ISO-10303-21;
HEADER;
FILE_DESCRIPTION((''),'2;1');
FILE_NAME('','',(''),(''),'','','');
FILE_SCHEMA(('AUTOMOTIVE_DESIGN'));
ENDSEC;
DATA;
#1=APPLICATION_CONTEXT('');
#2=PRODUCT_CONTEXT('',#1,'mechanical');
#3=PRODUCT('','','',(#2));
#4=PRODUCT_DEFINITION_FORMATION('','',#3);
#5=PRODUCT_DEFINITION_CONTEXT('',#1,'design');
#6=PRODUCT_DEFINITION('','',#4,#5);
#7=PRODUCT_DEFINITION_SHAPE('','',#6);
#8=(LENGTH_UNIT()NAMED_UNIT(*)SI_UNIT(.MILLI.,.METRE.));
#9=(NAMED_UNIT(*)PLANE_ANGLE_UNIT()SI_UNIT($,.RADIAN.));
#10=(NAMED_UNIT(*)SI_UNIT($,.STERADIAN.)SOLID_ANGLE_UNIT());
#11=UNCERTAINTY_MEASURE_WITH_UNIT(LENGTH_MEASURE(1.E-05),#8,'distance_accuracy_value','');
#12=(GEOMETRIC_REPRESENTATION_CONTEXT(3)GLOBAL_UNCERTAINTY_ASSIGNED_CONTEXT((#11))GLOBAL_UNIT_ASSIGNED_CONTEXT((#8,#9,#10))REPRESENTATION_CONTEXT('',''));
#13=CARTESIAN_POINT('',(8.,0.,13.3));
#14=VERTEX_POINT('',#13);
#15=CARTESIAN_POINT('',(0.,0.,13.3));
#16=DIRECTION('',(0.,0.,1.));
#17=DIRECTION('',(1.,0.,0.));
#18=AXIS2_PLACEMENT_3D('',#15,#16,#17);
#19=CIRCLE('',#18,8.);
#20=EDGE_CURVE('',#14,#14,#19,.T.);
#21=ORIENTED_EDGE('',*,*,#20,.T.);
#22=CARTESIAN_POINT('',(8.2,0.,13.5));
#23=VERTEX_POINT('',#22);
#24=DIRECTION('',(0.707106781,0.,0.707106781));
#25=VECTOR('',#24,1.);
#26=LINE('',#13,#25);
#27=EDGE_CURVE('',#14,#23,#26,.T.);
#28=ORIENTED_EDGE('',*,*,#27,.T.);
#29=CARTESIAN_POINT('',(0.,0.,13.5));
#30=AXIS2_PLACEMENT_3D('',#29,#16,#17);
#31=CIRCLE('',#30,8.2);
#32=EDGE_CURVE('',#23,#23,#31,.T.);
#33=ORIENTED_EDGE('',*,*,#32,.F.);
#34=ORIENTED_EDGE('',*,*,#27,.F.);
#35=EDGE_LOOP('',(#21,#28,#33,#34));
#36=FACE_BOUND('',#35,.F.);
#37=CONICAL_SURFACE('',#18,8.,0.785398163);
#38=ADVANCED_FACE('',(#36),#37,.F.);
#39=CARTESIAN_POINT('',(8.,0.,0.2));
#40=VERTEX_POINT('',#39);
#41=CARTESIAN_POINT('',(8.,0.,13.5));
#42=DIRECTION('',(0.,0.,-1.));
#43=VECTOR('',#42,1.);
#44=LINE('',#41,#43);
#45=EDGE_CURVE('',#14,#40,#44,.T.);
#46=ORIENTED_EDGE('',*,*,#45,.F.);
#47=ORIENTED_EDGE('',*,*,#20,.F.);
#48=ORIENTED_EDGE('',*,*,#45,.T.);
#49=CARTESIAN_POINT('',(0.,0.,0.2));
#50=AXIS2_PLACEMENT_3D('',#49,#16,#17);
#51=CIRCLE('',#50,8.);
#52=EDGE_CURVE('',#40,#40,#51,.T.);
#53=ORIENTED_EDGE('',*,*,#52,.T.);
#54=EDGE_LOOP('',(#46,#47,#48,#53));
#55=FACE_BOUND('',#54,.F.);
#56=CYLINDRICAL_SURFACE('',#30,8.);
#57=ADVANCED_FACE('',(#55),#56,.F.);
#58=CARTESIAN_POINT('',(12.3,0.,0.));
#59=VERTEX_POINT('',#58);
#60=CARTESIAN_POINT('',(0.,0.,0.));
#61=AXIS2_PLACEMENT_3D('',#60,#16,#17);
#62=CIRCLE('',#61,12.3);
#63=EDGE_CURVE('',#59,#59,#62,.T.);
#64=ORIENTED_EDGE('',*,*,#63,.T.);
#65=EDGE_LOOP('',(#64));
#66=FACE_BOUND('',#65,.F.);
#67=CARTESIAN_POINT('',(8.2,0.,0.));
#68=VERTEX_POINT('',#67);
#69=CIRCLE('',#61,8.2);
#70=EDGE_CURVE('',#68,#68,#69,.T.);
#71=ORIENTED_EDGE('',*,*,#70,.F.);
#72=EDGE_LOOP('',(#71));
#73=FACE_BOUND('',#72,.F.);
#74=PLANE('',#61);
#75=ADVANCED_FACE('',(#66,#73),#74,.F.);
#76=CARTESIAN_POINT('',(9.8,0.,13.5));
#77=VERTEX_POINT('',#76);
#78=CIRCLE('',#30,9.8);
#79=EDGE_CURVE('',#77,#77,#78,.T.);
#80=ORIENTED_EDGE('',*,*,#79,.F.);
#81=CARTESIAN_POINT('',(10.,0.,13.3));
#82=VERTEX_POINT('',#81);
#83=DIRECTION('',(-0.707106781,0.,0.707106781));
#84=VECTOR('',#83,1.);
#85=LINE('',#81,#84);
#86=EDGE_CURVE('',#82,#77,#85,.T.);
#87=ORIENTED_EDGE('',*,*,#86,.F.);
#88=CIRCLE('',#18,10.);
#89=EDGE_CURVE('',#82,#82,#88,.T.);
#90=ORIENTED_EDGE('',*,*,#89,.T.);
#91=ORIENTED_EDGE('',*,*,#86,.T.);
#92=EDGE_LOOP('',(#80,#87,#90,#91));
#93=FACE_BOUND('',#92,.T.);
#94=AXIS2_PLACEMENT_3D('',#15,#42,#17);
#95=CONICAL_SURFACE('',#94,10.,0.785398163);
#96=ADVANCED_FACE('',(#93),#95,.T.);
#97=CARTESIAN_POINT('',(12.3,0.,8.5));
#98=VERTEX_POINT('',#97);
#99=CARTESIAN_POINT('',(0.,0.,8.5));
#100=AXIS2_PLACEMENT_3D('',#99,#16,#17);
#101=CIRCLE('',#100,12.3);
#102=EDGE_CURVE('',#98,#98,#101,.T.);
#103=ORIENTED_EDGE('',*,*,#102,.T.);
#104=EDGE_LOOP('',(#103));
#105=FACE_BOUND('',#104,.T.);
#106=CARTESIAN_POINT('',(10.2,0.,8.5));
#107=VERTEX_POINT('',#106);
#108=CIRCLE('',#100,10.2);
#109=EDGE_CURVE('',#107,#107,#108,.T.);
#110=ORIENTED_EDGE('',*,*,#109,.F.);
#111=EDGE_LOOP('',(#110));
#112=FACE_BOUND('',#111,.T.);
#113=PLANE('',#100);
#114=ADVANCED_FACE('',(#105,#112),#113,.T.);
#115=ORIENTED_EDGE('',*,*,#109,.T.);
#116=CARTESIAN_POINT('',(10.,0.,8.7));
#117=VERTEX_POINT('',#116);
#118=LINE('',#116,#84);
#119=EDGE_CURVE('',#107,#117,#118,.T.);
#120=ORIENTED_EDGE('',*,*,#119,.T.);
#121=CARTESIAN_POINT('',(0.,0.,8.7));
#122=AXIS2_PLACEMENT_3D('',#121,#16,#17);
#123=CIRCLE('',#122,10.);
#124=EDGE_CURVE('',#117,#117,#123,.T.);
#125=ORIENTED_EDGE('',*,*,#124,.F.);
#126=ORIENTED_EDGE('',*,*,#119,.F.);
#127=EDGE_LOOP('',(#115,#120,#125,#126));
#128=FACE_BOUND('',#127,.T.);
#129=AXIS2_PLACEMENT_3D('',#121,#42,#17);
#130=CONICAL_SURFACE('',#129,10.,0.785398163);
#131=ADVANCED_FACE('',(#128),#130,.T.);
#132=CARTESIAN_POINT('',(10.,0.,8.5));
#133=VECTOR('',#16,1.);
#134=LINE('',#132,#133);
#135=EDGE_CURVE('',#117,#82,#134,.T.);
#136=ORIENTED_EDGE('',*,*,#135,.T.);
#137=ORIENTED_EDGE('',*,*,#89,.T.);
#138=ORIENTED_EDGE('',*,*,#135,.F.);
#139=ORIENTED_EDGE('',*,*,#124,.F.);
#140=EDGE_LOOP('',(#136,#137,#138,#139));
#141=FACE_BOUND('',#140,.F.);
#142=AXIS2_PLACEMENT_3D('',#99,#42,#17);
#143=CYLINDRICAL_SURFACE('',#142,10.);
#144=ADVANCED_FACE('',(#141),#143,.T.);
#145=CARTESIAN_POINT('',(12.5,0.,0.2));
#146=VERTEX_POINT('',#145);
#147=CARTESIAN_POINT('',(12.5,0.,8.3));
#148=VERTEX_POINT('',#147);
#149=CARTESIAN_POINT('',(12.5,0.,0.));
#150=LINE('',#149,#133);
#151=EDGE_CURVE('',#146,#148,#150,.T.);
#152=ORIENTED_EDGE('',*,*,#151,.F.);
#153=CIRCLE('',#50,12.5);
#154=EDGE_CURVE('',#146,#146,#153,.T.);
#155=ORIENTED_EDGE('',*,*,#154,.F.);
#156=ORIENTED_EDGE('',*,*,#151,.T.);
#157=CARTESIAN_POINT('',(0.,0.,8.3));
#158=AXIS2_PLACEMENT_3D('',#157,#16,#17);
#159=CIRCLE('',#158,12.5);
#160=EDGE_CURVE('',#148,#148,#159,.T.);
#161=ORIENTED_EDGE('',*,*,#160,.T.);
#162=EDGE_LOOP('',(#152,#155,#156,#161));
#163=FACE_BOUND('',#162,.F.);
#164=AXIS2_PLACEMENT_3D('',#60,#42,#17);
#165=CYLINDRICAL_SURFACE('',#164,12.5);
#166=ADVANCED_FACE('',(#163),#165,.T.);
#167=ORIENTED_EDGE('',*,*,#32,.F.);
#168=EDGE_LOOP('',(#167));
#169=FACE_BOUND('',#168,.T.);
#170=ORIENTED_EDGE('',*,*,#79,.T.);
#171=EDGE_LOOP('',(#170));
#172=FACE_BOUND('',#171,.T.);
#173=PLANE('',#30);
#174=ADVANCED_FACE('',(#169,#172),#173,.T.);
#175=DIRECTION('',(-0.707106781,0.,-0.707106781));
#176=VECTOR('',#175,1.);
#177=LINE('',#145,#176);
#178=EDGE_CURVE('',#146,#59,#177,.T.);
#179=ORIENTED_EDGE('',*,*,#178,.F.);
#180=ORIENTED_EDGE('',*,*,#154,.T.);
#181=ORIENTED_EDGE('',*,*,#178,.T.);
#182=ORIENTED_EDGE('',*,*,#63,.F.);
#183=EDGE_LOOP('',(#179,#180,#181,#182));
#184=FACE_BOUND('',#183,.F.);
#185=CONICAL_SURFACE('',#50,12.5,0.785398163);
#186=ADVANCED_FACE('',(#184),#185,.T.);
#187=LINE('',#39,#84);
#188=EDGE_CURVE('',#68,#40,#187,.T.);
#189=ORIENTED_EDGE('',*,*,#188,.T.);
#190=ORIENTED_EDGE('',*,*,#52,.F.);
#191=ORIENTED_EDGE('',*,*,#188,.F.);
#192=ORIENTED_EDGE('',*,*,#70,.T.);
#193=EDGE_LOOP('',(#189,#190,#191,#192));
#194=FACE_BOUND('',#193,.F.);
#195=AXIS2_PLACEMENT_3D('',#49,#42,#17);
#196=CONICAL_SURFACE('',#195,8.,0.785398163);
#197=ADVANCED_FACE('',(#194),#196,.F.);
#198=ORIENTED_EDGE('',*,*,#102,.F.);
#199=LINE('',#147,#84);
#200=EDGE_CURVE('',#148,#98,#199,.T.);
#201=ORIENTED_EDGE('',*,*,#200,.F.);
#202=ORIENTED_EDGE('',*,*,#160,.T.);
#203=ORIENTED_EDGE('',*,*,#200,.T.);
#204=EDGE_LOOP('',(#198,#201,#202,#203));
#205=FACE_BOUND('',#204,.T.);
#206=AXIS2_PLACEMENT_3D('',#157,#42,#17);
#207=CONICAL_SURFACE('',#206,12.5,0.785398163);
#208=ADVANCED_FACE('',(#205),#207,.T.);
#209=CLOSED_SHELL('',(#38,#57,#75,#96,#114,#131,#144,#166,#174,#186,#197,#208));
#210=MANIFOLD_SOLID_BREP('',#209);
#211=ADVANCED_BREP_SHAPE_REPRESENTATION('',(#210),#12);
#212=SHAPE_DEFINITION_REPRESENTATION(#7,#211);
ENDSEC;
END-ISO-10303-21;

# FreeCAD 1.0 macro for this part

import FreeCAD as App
import Part
import Sketcher

V = App.Vector
Q = App.Units.Quantity


def edges_at(feature, points):
    """Names of the edges that pass closest to the given points."""
    edges = feature.Shape.Edges
    near = lambda p: min(range(len(edges)), key=lambda i: edges[i].distToShape(Part.Vertex(*p))[0])
    return sorted({f"Edge{near(p) + 1}" for p in points})

doc = App.newDocument("Part")
body = doc.addObject("PartDesign::Body", "Body")

sketch1 = body.newObject("Sketcher::SketchObject", "Sketch")
sketch1.AttachmentSupport = (doc.getObject("XY_Plane"), [""])
sketch1.MapMode = "FlatFace"
sketch1.addGeometry(Part.Circle(V(0, 0, 0), V(0, 0, 1), 12.5), False)
sketch1.addConstraint(Sketcher.Constraint("Coincident", 0, 3, -1, 1))
sketch1.addConstraint(Sketcher.Constraint("Diameter", 0, Q("25 mm")))
pad1 = body.newObject("PartDesign::Pad", "Pad")
pad1.Profile = sketch1
pad1.Length = 8.5

sketch2 = body.newObject("Sketcher::SketchObject", "Sketch001")
sketch2.AttachmentSupport = (doc.getObject("XY_Plane"), [""])
sketch2.MapMode = "FlatFace"
sketch2.AttachmentOffset = App.Placement(V(0, 0, 8.5), App.Rotation())
sketch2.addGeometry(Part.Circle(V(0, 0, 0), V(0, 0, 1), 10), False)
sketch2.addConstraint(Sketcher.Constraint("Coincident", 0, 3, -1, 1))
sketch2.addConstraint(Sketcher.Constraint("Diameter", 0, Q("20 mm")))
pad2 = body.newObject("PartDesign::Pad", "Pad001")
pad2.Profile = sketch2
pad2.Length = 5

sketch3 = body.newObject("Sketcher::SketchObject", "Sketch002")
sketch3.AttachmentSupport = (doc.getObject("XY_Plane"), [""])
sketch3.MapMode = "FlatFace"
sketch3.AttachmentOffset = App.Placement(V(0, 0, 13.5), App.Rotation())
sketch3.addGeometry(Part.Circle(V(0, 0, 0), V(0, 0, 1), 8), False)
sketch3.addConstraint(Sketcher.Constraint("Coincident", 0, 3, -1, 1))
sketch3.addConstraint(Sketcher.Constraint("Diameter", 0, Q("16 mm")))
pocket1 = body.newObject("PartDesign::Pocket", "Pocket")
pocket1.Profile = sketch3
pocket1.Type = "ThroughAll"
doc.recompute()

chamfer = body.newObject("PartDesign::Chamfer", "Chamfer")
chamfer.Base = (pocket1, edges_at(pocket1, [
    (-10, 0, 13.5),
    (-8, 0, 13.5),
    (-12.5, 0, 8.5),
    (-10, 0, 8.5),
    (-12.5, 0, 0),
    (-8, 0, 0),
]))
chamfer.Size = 0.2

doc.recompute()
